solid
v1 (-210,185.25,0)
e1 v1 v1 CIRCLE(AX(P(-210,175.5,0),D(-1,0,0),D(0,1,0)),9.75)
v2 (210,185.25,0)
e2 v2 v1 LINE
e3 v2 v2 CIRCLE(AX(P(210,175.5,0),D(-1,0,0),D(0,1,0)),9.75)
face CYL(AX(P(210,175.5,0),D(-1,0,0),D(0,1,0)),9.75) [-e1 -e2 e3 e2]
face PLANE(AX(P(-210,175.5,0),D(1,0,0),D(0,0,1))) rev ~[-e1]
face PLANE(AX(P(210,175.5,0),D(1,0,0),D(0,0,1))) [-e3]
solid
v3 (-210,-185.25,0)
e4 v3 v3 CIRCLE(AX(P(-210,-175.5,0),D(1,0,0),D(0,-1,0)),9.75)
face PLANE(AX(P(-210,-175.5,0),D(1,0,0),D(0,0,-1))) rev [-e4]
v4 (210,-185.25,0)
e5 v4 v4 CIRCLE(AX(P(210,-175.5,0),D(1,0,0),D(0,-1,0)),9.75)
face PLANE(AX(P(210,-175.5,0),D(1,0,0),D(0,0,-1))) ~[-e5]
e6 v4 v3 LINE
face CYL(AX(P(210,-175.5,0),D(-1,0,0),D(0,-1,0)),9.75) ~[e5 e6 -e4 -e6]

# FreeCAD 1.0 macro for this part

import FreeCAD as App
import Part
import Sketcher
Q = App.Units.Quantity

doc = App.newDocument("Part")
params = doc.addObject("Spreadsheet::Sheet", "Params")
for row, (alias, value) in enumerate([
    ("sketch1_diameter", "19.5 mm"),
    ("sketch2_width", "420 mm"),
], start=1):
    params.set(f"A{row}", alias)
    params.set(f"B{row}", "=" + value)
    params.setAlias(f"B{row}", alias)

body = doc.addObject("PartDesign::Body", "Body")

# Sketch on YZ plane
sketch1 = body.newObject("Sketcher::SketchObject", "Sketch")
sketch1.AttachmentSupport = (doc.getObject("YZ_Plane"), [""])
sketch1.MapMode = "FlatFace"
sketch1.addGeometry(Part.Circle(App.Vector(176, 0, 0), App.Vector(0, 0, 1), 10), False)
sketch1.addConstraint(Sketcher.Constraint("PointOnObject", 0, 3, -1))
sketch1.addConstraint(Sketcher.Constraint("Diameter", 0, Q("19.5 mm")))
sketch1.addConstraint(Sketcher.Constraint("DistanceX", -1, 1, 0, 3, Q("175.5 mm")))
sketch1.setExpression("Constraints[1]", "Params.sketch1_diameter")

# Sketch on XY plane
sketch2 = body.newObject("Sketcher::SketchObject", "Sketch001")
sketch2.AttachmentSupport = (doc.getObject("XY_Plane"), [""])
sketch2.MapMode = "FlatFace"
sketch2.addGeometry(Part.LineSegment(App.Vector(210, 176, 0), App.Vector(-210, 176, 0)), False)
sketch2.addConstraint(Sketcher.Constraint("Horizontal", 0))
sketch2.addConstraint(Sketcher.Constraint("DistanceX", 0, 2, 0, 1, Q("420 mm")))
sketch2.addConstraint(Sketcher.Constraint("DistanceX", -1, 1, 0, 1, Q("210 mm")))
sketch2.addConstraint(Sketcher.Constraint("DistanceY", -1, 1, 0, 1, Q("175.5 mm")))
sketch2.setExpression("Constraints[1]", "Params.sketch2_width")
doc.recompute()

additivepipe = body.newObject("PartDesign::AdditivePipe", "AdditivePipe")
additivepipe.Profile = sketch1
additivepipe.Spine = (sketch2, ["Edge1"])
body2 = doc.addObject("PartDesign::Body", "Body001")
doc.recompute()

mirroring = doc.addObject("Part::Mirroring", "Mirroring")
mirroring.Source = body
mirroring.Base = App.Vector(0, 0, 0)
mirroring.Normal = App.Vector(0, -1, 0)
body2.BaseFeature = mirroring
doc.recompute()
mirroring.Visibility = False

doc.recompute()
